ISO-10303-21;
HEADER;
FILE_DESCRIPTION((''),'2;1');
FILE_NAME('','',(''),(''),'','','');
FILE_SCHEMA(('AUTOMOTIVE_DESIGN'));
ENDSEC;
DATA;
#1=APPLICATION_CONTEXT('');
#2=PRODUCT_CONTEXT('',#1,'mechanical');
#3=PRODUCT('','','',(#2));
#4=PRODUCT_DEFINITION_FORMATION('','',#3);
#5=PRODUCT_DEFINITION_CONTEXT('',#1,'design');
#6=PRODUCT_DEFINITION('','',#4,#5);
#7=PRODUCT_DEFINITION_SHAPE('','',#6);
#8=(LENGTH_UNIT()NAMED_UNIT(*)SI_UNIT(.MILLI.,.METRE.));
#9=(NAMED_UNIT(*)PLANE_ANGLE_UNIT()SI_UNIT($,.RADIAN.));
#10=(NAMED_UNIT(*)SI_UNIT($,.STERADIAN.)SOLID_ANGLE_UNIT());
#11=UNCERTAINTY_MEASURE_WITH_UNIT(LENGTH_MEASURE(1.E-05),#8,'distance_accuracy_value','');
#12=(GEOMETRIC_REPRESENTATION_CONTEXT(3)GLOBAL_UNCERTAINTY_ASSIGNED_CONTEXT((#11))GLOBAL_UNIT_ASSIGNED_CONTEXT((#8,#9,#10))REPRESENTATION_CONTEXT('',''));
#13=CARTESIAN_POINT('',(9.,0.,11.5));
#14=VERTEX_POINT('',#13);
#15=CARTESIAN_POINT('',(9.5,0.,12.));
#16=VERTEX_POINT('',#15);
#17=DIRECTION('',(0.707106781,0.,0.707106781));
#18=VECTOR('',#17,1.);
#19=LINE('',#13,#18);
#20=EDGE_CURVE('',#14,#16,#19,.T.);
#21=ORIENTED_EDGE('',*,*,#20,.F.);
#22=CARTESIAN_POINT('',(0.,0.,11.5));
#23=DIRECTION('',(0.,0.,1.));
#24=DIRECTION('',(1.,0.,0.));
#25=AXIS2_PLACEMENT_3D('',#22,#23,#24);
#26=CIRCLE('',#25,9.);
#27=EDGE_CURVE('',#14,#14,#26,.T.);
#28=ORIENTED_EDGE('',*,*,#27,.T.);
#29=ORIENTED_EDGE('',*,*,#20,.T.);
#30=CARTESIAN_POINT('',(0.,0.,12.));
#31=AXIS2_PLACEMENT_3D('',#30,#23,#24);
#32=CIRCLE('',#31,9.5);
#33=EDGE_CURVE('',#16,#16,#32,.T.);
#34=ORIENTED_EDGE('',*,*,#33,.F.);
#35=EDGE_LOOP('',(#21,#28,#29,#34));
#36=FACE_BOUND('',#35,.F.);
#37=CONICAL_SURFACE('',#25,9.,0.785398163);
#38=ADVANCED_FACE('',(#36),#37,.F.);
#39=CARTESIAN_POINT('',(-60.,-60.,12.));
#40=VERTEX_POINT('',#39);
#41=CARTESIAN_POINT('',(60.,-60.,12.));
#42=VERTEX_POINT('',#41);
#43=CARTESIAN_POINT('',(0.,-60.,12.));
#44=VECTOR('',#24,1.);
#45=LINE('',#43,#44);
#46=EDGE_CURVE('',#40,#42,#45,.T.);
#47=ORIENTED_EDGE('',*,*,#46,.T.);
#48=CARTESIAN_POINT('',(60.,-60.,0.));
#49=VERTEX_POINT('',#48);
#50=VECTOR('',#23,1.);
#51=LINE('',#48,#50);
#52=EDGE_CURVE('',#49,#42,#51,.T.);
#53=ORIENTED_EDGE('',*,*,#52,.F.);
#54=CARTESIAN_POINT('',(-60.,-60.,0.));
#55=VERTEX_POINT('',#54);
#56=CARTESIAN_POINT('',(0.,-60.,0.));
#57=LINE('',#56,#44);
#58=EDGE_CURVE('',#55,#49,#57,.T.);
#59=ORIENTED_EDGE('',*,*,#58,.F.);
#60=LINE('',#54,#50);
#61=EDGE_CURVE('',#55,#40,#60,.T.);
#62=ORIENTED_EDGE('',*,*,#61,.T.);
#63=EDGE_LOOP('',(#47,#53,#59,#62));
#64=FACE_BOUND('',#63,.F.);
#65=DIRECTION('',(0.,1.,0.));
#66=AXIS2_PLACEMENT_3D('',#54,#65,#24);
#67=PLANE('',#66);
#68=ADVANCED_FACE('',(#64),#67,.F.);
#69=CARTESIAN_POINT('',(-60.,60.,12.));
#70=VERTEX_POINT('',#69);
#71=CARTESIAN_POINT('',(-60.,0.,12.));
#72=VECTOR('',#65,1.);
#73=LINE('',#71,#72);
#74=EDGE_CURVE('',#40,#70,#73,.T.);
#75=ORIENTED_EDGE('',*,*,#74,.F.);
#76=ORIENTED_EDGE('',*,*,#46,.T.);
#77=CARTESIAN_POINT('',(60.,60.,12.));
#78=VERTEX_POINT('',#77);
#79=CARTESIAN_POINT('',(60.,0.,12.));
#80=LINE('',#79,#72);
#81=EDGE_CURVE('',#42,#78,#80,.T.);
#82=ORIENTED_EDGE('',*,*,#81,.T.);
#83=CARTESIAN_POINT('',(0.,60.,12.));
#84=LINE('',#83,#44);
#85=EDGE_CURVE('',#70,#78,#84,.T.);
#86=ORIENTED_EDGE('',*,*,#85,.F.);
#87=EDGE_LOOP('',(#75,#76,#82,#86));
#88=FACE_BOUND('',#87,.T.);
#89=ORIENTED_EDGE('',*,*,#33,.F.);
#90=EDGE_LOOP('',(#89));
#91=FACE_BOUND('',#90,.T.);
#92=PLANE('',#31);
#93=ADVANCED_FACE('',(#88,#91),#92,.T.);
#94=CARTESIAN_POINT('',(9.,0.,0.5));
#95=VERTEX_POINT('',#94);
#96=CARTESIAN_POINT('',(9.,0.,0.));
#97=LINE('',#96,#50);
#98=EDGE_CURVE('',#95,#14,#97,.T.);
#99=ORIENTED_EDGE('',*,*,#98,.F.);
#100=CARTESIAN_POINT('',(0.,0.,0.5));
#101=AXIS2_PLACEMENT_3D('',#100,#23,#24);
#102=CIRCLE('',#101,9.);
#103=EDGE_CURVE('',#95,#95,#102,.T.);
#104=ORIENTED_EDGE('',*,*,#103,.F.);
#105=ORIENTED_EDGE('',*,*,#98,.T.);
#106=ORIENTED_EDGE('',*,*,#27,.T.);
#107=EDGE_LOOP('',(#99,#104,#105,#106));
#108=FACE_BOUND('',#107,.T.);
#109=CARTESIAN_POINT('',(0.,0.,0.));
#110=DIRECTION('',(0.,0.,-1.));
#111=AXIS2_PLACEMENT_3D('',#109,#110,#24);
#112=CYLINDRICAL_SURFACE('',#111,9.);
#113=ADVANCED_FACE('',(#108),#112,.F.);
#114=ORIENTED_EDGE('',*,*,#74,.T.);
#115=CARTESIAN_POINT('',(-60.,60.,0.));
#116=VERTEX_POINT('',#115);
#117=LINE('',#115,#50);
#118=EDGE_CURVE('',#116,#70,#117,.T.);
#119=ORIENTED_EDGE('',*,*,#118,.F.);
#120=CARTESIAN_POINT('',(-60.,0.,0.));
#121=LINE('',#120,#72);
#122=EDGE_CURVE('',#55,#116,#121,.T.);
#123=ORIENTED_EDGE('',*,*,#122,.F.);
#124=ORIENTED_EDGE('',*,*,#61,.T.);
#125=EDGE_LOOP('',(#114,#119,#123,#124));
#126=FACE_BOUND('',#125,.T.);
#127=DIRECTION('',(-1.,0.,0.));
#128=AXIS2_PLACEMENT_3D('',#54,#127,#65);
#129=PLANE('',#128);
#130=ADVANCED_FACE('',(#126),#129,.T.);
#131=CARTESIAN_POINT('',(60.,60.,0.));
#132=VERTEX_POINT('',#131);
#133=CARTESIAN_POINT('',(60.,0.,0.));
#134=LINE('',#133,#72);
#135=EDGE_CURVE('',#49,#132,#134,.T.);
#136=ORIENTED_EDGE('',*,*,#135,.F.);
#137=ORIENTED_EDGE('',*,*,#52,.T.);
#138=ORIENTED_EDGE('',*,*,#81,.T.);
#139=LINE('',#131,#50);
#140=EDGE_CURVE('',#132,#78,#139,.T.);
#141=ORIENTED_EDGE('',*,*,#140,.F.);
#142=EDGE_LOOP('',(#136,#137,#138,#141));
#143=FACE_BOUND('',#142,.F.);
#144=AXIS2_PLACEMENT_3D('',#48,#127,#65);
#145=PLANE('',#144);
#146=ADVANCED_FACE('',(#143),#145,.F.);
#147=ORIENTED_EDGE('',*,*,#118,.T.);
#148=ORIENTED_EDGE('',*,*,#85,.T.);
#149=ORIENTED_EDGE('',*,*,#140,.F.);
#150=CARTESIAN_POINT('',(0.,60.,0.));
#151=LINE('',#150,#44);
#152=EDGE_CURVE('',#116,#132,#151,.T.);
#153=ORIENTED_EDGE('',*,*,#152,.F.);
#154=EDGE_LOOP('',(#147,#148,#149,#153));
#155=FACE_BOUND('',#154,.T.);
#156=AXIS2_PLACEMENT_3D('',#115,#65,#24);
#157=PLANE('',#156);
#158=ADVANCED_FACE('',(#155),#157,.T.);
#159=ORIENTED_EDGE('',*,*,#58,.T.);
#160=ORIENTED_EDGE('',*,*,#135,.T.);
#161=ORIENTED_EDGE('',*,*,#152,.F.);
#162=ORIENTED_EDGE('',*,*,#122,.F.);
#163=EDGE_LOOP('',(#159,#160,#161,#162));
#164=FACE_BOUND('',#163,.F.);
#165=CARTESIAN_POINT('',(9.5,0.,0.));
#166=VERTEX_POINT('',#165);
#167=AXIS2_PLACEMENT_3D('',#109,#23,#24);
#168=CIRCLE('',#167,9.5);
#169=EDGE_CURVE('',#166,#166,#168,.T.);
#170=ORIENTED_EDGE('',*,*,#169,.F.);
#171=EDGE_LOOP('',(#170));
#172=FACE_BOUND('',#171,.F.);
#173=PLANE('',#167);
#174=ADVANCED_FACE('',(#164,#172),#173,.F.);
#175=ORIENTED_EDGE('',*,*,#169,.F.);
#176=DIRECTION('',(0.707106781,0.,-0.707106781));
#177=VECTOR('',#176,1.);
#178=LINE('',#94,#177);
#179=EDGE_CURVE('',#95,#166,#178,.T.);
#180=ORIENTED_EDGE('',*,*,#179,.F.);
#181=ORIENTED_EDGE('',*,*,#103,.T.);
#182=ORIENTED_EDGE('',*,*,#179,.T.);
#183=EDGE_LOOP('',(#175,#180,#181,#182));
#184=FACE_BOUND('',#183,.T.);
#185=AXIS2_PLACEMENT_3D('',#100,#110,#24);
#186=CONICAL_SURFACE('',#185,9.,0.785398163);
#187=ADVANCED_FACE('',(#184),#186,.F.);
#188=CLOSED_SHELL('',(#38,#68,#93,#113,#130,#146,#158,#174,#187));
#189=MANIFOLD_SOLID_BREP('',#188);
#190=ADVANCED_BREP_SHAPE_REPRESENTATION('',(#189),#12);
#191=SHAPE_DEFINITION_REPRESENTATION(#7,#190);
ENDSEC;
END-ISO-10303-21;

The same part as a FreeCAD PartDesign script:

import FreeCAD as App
import Part
import Sketcher

V = App.Vector
Q = App.Units.Quantity


def edges_at(feature, points):
    """Names of the edges that pass closest to the given points."""
    edges = feature.Shape.Edges
    near = lambda p: min(range(len(edges)), key=lambda i: edges[i].distToShape(Part.Vertex(*p))[0])
    return sorted({f"Edge{near(p) + 1}" for p in points})

doc = App.newDocument("Part")
params = doc.addObject("Spreadsheet::Sheet", "Params")
for row, (alias, value) in enumerate([
    ("sketch1_diameter", "18 mm"),
    ("sketch1_width", "120 mm"),
    ("pad1_length", "12 mm"),
    ("chamfer_size", "0.5 mm"),
], start=1):
    params.set(f"A{row}", alias)
    params.set(f"B{row}", "=" + value)
    params.setAlias(f"B{row}", alias)

body = doc.addObject("PartDesign::Body", "Body")

sketch1 = body.newObject("Sketcher::SketchObject", "Sketch")
sketch1.AttachmentSupport = (doc.getObject("XY_Plane"), [""])
sketch1.MapMode = "FlatFace"
sketch1.addGeometry([
    Part.LineSegment(V(-60, 60, 0), V(-60, -60, 0)),
    Part.LineSegment(V(-60, -60, 0), V(60, -60, 0)),
    Part.LineSegment(V(60, -60, 0), V(60, 60, 0)),
    Part.LineSegment(V(60, 60, 0), V(-60, 60, 0)),
    Part.Circle(V(0, 0, 0), V(0, 0, 1), 9),
], False)
sketch1.addConstraint([
    Sketcher.Constraint("Coincident", 0, 2, 1, 1),
    Sketcher.Constraint("Coincident", 1, 2, 2, 1),
    Sketcher.Constraint("Coincident", 2, 2, 3, 1),
    Sketcher.Constraint("Coincident", 3, 2, 0, 1),
    Sketcher.Constraint("Vertical", 0),
    Sketcher.Constraint("Horizontal", 1),
    Sketcher.Constraint("Vertical", 2),
    Sketcher.Constraint("Horizontal", 3),
    Sketcher.Constraint("Coincident", 4, 3, -1, 1),
    Sketcher.Constraint("Symmetric", 0, 2, 2, 2, -1, 1),
    Sketcher.Constraint("Equal", 3, 0),
    Sketcher.Constraint("Diameter", 4, Q("18 mm")),
    Sketcher.Constraint("DistanceX", 1, 1, 1, 2, Q("120 mm")),
])
sketch1.setExpression("Constraints[11]", "Params.sketch1_diameter")
sketch1.setExpression("Constraints[12]", "Params.sketch1_width")
pad1 = body.newObject("PartDesign::Pad", "Pad")
pad1.Profile = sketch1
pad1.setExpression("Length", "Params.pad1_length")
doc.recompute()

chamfer = body.newObject("PartDesign::Chamfer", "Chamfer")
chamfer.Base = (pad1, edges_at(pad1, [(9, 0, 6), (-9, 0, 0), (-9, 0, 12)]))
chamfer.setExpression("Size", "Params.chamfer_size")

doc.recompute()
